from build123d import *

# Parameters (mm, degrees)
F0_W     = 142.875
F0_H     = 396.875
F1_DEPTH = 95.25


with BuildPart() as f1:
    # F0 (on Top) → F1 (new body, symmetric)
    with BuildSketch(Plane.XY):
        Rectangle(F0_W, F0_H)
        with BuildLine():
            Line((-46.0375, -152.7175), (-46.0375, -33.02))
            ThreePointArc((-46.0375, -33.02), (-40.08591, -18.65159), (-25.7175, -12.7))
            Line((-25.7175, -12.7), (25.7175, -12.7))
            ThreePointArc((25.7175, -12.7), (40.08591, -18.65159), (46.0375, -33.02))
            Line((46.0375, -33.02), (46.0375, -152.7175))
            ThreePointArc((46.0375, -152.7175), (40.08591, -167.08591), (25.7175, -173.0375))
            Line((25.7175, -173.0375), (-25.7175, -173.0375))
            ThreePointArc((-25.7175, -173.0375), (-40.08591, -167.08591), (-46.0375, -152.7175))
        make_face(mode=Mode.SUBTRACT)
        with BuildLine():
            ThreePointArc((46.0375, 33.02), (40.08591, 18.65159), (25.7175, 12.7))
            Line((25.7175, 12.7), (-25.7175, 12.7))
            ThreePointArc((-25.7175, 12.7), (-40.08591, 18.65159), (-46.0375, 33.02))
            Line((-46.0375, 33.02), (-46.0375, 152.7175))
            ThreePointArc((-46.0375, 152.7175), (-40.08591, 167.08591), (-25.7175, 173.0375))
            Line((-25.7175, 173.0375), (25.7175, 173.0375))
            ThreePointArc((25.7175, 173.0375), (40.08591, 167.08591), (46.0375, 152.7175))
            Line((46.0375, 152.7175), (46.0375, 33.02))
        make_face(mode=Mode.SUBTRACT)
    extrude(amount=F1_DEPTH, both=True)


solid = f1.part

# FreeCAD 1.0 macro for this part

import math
import FreeCAD as App
import Part
import Sketcher

V = App.Vector
Q = App.Units.Quantity


def add_polygon(sketch, points):
    """Adds a closed chain of lines whose ends are joined by coincident constraints."""
    first, n = sketch.GeometryCount, len(points)
    for a, b in zip(points, points[1:] + points[:1]):
        sketch.addGeometry(Part.LineSegment(App.Vector(*a, 0), App.Vector(*b, 0)), False)
    for i in range(n):
        sketch.addConstraint(Sketcher.Constraint("Coincident", first + i, 2, first + (i + 1) % n, 1))

doc = App.newDocument("Part")
body = doc.addObject("PartDesign::Body", "Body")

sketch1 = body.newObject("Sketcher::SketchObject", "Sketch")
sketch1.AttachmentSupport = (doc.getObject("XY_Plane"), [""])
sketch1.MapMode = "FlatFace"
add_polygon(sketch1, [(-71, 198), (-71, -198), (71, -198), (71, 198)])
sketch1.addGeometry(Part.ArcOfCircle(Part.Circle(V(-26, -153, 0), V(0, 0, 1), 20), math.radians(180), math.radians(270)), False)
sketch1.addGeometry(Part.LineSegment(V(-46, -153, 0), V(-46, -33, 0)), False)
sketch1.addGeometry(Part.ArcOfCircle(Part.Circle(V(-26, -33, 0), V(0, 0, 1), 20), math.radians(90), math.radians(180)), False)
sketch1.addGeometry(Part.LineSegment(V(-26, -13, 0), V(26, -13, 0)), False)
sketch1.addGeometry(Part.ArcOfCircle(Part.Circle(V(26, -33, 0), V(0, 0, 1), 20), math.radians(0), math.radians(90)), False)
sketch1.addGeometry(Part.LineSegment(V(46, -33, 0), V(46, -153, 0)), False)
sketch1.addGeometry(Part.ArcOfCircle(Part.Circle(V(26, -153, 0), V(0, 0, 1), 20), math.radians(-90), math.radians(0)), False)
sketch1.addGeometry(Part.LineSegment(V(26, -173, 0), V(-26, -173, 0)), False)
sketch1.addGeometry(Part.LineSegment(V(46, 153, 0), V(46, 33, 0)), False)
sketch1.addGeometry(Part.ArcOfCircle(Part.Circle(V(26, 33, 0), V(0, 0, 1), 20), math.radians(-90), math.radians(0)), False)
sketch1.addGeometry(Part.LineSegment(V(26, 13, 0), V(-26, 13, 0)), False)
sketch1.addGeometry(Part.ArcOfCircle(Part.Circle(V(-26, 33, 0), V(0, 0, 1), 20), math.radians(180), math.radians(270)), False)
sketch1.addGeometry(Part.LineSegment(V(-46, 33, 0), V(-46, 153, 0)), False)
sketch1.addGeometry(Part.ArcOfCircle(Part.Circle(V(-26, 153, 0), V(0, 0, 1), 20), math.radians(90), math.radians(180)), False)
sketch1.addGeometry(Part.LineSegment(V(-26, 173, 0), V(26, 173, 0)), False)
sketch1.addGeometry(Part.ArcOfCircle(Part.Circle(V(26, 153, 0), V(0, 0, 1), 20), math.radians(0), math.radians(90)), False)
sketch1.addConstraint(Sketcher.Constraint("Tangent", 4, 1, 5, 1))
sketch1.addConstraint(Sketcher.Constraint("Tangent", 5, 2, 6, 2))
sketch1.addConstraint(Sketcher.Constraint("Tangent", 6, 1, 7, 1))
sketch1.addConstraint(Sketcher.Constraint("Tangent", 7, 2, 8, 2))
sketch1.addConstraint(Sketcher.Constraint("Tangent", 8, 1, 9, 1))
sketch1.addConstraint(Sketcher.Constraint("Tangent", 9, 2, 10, 2))
sketch1.addConstraint(Sketcher.Constraint("Tangent", 10, 1, 11, 1))
sketch1.addConstraint(Sketcher.Constraint("Tangent", 11, 2, 4, 2))
sketch1.addConstraint(Sketcher.Constraint("Tangent", 12, 2, 13, 2))
sketch1.addConstraint(Sketcher.Constraint("Tangent", 13, 1, 14, 1))
sketch1.addConstraint(Sketcher.Constraint("Tangent", 14, 2, 15, 2))
sketch1.addConstraint(Sketcher.Constraint("Tangent", 15, 1, 16, 1))
sketch1.addConstraint(Sketcher.Constraint("Tangent", 16, 2, 17, 2))
sketch1.addConstraint(Sketcher.Constraint("Tangent", 17, 1, 18, 1))
sketch1.addConstraint(Sketcher.Constraint("Tangent", 18, 2, 19, 2))
sketch1.addConstraint(Sketcher.Constraint("Tangent", 19, 1, 12, 1))
sketch1.addConstraint(Sketcher.Constraint("Vertical", 0))
sketch1.addConstraint(Sketcher.Constraint("Horizontal", 1))
sketch1.addConstraint(Sketcher.Constraint("Vertical", 2))
sketch1.addConstraint(Sketcher.Constraint("Horizontal", 3))
sketch1.addConstraint(Sketcher.Constraint("Vertical", 5))
sketch1.addConstraint(Sketcher.Constraint("Horizontal", 7))
sketch1.addConstraint(Sketcher.Constraint("Vertical", 9))
sketch1.addConstraint(Sketcher.Constraint("Horizontal", 11))
sketch1.addConstraint(Sketcher.Constraint("Vertical", 12))
sketch1.addConstraint(Sketcher.Constraint("Horizontal", 14))
sketch1.addConstraint(Sketcher.Constraint("Vertical", 16))
sketch1.addConstraint(Sketcher.Constraint("Horizontal", 18))
sketch1.addConstraint(Sketcher.Constraint("Equal", 4, 6))
sketch1.addConstraint(Sketcher.Constraint("Equal", 6, 8))
sketch1.addConstraint(Sketcher.Constraint("Equal", 8, 10))
sketch1.addConstraint(Sketcher.Constraint("Equal", 10, 13))
sketch1.addConstraint(Sketcher.Constraint("Equal", 13, 15))
sketch1.addConstraint(Sketcher.Constraint("Equal", 15, 17))
sketch1.addConstraint(Sketcher.Constraint("Equal", 17, 19))
sketch1.addConstraint(Sketcher.Constraint("Symmetric", 6, 3, 13, 3, -1, 1))
sketch1.addConstraint(Sketcher.Constraint("Symmetric", 10, 3, 17, 3, -1, 1))
sketch1.addConstraint(Sketcher.Constraint("Symmetric", 0, 2, 2, 2, -1, 1))
sketch1.addConstraint(Sketcher.Constraint("Vertical", 10, 3, 13, 3))
sketch1.addConstraint(Sketcher.Constraint("Radius", 4, Q("0.8 in")))
sketch1.addConstraint(Sketcher.Constraint("DistanceX", 0, 2, 4, 1, Q("1 in")))
sketch1.addConstraint(Sketcher.Constraint("DistanceY", 1, 2, 10, 1, Q("1 in")))
sketch1.addConstraint(Sketcher.Constraint("DistanceY", 7, 2, 13, 1, Q("1 in")))
sketch1.addConstraint(Sketcher.Constraint("DistanceX", 1, 1, 1, 2, Q("5.625 in")))
sketch1.addConstraint(Sketcher.Constraint("DistanceY", 0, 2, 0, 1, Q("15.625 in")))
pad1 = body.newObject("PartDesign::Pad", "Pad")
pad1.Profile = sketch1
pad1.Length = Q("7.5 in")
pad1.Midplane = True

doc.recompute()
